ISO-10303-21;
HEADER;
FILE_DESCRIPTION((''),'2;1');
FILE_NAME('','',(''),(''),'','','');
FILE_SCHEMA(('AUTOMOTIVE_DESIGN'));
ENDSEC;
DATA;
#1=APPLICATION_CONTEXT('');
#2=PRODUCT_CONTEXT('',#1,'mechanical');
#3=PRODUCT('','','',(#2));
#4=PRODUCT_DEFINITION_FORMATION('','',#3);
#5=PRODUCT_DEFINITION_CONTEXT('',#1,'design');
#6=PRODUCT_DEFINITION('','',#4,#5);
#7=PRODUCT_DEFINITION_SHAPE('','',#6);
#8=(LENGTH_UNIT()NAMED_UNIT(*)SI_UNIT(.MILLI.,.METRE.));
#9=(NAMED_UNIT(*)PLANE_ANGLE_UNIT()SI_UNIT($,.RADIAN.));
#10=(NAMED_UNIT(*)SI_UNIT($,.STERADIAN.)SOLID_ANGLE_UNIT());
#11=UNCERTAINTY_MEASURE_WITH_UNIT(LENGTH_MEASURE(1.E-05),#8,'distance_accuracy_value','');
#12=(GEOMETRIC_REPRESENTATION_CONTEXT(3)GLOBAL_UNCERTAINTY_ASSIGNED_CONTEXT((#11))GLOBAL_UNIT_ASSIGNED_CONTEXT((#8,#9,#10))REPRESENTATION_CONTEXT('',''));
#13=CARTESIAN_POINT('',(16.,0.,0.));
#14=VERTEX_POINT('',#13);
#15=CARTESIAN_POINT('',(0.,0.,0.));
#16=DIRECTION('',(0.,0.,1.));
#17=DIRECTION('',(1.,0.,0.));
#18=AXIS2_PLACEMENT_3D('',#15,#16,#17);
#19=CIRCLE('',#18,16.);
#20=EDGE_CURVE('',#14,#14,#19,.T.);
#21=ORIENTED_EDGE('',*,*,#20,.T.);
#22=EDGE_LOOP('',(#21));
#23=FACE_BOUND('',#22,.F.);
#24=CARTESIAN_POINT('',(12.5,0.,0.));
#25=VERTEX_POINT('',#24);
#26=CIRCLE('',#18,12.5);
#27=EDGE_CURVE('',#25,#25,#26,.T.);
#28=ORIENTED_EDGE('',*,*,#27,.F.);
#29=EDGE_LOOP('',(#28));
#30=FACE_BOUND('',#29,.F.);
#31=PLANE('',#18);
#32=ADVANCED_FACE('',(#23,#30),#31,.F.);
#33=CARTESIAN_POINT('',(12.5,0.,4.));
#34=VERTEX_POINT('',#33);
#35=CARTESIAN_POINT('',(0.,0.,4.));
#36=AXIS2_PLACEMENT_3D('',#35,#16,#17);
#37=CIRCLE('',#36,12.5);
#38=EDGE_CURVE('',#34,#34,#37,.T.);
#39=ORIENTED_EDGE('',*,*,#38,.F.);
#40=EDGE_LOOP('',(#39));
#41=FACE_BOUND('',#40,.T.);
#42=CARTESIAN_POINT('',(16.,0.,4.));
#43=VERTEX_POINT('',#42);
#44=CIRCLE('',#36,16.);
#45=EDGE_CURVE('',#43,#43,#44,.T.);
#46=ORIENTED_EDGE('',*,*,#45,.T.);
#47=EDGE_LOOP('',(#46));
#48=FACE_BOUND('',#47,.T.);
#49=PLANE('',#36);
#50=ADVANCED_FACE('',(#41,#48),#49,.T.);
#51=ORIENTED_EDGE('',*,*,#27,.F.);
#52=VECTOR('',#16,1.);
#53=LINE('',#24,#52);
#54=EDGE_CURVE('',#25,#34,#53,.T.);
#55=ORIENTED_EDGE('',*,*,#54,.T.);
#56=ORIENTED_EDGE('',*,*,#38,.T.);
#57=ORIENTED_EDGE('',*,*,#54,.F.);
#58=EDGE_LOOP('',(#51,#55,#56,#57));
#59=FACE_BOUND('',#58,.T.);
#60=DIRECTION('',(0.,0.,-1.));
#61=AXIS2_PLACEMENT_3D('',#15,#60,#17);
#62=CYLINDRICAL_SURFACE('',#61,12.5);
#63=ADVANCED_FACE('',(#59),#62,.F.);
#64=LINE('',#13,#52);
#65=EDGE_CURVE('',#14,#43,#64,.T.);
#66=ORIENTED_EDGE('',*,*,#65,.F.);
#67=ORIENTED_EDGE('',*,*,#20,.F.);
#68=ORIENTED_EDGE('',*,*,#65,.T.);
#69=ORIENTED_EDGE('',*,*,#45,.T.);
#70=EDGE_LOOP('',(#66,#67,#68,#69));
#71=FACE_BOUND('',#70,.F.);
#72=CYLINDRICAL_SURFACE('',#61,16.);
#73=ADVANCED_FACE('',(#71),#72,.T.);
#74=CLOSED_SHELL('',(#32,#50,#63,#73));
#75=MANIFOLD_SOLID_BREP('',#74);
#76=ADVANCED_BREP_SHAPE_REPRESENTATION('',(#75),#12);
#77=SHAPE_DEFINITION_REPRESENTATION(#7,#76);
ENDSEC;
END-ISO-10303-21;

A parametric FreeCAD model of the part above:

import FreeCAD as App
import Part
import Sketcher
from FreeCAD import Vector

doc = App.newDocument("Part")
body = doc.addObject("PartDesign::Body", "Body")

# Sketch on XY plane
sketch1 = body.newObject("Sketcher::SketchObject", "Sketch")
sketch1.AttachmentSupport = (doc.getObject("XY_Plane"), [""])
sketch1.MapMode = "FlatFace"
sketch1.addGeometry([
    Part.Circle(Vector(0, 0, 0), Vector(0, 0, 1), 16),
    Part.Circle(Vector(0, 0, 0), Vector(0, 0, 1), 12),
], False)
sketch1.addConstraint([
    Sketcher.Constraint("Coincident", 0, 3, -1, 1),
    Sketcher.Constraint("Coincident", 1, 3, -1, 1),
    Sketcher.Constraint("Diameter", 0, 32.0),
    Sketcher.Constraint("Diameter", 1, 25.0),
])
pad1 = body.newObject("PartDesign::Pad", "Pad")
pad1.Profile = sketch1
pad1.Length = 4

doc.recompute()
